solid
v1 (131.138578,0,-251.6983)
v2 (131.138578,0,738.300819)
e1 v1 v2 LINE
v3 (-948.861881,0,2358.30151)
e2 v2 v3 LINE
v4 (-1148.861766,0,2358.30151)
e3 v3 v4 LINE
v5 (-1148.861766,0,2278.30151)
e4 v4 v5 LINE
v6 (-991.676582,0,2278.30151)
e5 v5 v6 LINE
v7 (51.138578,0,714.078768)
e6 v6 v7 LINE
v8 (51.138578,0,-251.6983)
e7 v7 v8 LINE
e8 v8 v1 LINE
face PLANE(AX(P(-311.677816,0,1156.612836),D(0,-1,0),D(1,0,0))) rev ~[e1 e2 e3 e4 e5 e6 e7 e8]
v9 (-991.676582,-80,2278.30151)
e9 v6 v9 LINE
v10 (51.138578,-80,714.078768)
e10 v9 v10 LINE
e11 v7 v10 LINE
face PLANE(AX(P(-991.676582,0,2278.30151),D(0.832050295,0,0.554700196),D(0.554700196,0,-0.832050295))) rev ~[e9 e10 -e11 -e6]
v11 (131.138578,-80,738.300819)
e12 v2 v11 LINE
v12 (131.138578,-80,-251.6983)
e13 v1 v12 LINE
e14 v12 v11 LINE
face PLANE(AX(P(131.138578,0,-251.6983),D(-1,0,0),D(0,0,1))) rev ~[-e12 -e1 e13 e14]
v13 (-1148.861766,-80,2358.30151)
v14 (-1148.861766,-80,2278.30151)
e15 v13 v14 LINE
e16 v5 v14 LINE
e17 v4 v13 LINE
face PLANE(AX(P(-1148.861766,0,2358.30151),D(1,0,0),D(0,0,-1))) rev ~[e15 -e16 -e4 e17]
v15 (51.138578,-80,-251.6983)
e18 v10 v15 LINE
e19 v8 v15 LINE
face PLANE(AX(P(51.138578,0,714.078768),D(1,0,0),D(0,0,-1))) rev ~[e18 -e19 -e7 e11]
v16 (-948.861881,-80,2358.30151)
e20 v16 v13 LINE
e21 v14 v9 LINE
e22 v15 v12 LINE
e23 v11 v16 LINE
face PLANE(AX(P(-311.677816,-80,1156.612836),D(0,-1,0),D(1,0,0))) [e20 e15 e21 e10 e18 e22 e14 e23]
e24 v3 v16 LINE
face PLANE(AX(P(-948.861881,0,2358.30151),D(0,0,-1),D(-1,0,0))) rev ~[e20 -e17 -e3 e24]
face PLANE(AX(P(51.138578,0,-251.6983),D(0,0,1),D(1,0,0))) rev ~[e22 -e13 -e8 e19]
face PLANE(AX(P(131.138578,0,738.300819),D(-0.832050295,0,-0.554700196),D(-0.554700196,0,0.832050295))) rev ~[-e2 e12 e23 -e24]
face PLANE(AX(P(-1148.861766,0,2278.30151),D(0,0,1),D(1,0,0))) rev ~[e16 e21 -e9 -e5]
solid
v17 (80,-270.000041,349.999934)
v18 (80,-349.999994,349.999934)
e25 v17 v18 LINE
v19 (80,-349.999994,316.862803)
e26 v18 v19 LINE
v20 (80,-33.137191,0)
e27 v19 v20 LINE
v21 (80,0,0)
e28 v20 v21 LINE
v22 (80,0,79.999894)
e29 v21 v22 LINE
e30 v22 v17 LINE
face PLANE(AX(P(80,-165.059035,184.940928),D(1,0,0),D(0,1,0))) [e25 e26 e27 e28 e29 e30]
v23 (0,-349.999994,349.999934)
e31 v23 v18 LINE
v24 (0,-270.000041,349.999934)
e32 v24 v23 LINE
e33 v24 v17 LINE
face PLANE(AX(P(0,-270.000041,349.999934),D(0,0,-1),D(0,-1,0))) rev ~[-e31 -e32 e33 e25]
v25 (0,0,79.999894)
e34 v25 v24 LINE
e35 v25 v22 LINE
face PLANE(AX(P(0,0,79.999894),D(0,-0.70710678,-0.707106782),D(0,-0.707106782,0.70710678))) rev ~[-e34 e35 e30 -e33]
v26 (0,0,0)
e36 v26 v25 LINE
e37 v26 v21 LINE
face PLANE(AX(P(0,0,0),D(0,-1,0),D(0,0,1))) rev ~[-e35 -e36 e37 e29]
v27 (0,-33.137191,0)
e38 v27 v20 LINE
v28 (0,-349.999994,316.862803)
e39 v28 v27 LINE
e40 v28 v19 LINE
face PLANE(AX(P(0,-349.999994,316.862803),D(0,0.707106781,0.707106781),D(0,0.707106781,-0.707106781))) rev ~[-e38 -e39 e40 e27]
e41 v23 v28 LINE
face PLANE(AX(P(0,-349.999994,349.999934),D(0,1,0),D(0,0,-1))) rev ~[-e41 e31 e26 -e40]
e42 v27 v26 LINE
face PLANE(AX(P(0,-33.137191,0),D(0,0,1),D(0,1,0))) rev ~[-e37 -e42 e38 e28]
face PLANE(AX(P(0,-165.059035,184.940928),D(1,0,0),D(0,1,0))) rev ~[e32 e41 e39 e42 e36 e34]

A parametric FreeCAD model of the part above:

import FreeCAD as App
import Part
import Sketcher
from FreeCAD import Vector
Q = App.Units.Quantity


def add_polygon(sketch, points):
    """Adds a closed chain of lines whose ends are joined by coincident constraints."""
    first, n = sketch.GeometryCount, len(points)
    for a, b in zip(points, points[1:] + points[:1]):
        sketch.addGeometry(Part.LineSegment(App.Vector(*a, 0), App.Vector(*b, 0)), False)
    for i in range(n):
        sketch.addConstraint(Sketcher.Constraint("Coincident", first + i, 2, first + (i + 1) % n, 1))

doc = App.newDocument("Part")
body = doc.addObject("PartDesign::Body", "Body")

# Sketch on YZ plane
sketch1 = body.newObject("Sketcher::SketchObject", "Sketch")
sketch1.AttachmentSupport = (doc.getObject("YZ_Plane"), [""])
sketch1.MapMode = "FlatFace"
add_polygon(sketch1, [(-33, 0), (0, 0), (0, 80), (-270, 350), (-350, 350), (-350, 317)])  # lines 0-5
sketch1.addConstraint([
    Sketcher.Constraint("Horizontal", 0),
    Sketcher.Constraint("Vertical", 1),
    Sketcher.Constraint("Horizontal", 3),
    Sketcher.Constraint("Vertical", 4),
    Sketcher.Constraint("Coincident", 0, 2, -1, 1),
    Sketcher.Constraint("Parallel", 2, 5),
    Sketcher.Constraint("Angle", 2, Q("135 deg")),
    Sketcher.Constraint("DistanceX", 0, 1, 0, 2, Q("33.137191 mm")),
    Sketcher.Constraint("DistanceY", 4, 2, 4, 1, Q("33.137131 mm")),
    Sketcher.Constraint("Distance", 2, Q("381.837719 mm")),
    Sketcher.Constraint("DistanceX", 3, 2, 3, 1, Q("79.999953 mm")),
])
pad1 = body.newObject("PartDesign::Pad", "Pad")
pad1.Profile = sketch1
pad1.Length = 80
body2 = doc.addObject("PartDesign::Body", "Body001")

# Sketch on XZ plane
sketch2 = body2.newObject("Sketcher::SketchObject", "Sketch001")
sketch2.AttachmentSupport = (doc.getObject("XZ_Plane001"), [""])
sketch2.MapMode = "FlatFace"
add_polygon(sketch2, [(-1149, 2278), (-992, 2278), (51, 714), (51, -252), (131, -252), (131, 738), (-949, 2358), (-1149, 2358)])  # lines 0-7
sketch2.addConstraint([
    Sketcher.Constraint("Horizontal", 0),
    Sketcher.Constraint("Vertical", 2),
    Sketcher.Constraint("Horizontal", 3),
    Sketcher.Constraint("Vertical", 4),
    Sketcher.Constraint("Horizontal", 6),
    Sketcher.Constraint("Vertical", 7),
    Sketcher.Constraint("Parallel", 1, 5),
    Sketcher.Constraint("Equal", 3, 7),
    Sketcher.Constraint("DistanceX", 3, 1, 3, 2, Q("80 mm")),
    Sketcher.Constraint("DistanceY", 2, 2, 2, 1, Q("965.777068 mm")),
    Sketcher.Constraint("DistanceY", 4, 1, 4, 2, Q("989.999119 mm")),
    Sketcher.Constraint("DistanceY", 2, 2, -1, 1, Q("251.6983 mm")),
    Sketcher.Constraint("DistanceX", 0, 2, 5, 2, Q("42.814701 mm")),
    Sketcher.Constraint("Distance", 5, Q("1946.998518 mm")),
    Sketcher.Constraint("DistanceX", 0, 1, 0, 2, Q("157.185184 mm")),
    Sketcher.Constraint("DistanceX", -1, 1, 1, 2, Q("51.138578 mm")),
])
pad2 = body2.newObject("PartDesign::Pad", "Pad001")
pad2.Profile = sketch2
pad2.Length = 80

doc.recompute()
